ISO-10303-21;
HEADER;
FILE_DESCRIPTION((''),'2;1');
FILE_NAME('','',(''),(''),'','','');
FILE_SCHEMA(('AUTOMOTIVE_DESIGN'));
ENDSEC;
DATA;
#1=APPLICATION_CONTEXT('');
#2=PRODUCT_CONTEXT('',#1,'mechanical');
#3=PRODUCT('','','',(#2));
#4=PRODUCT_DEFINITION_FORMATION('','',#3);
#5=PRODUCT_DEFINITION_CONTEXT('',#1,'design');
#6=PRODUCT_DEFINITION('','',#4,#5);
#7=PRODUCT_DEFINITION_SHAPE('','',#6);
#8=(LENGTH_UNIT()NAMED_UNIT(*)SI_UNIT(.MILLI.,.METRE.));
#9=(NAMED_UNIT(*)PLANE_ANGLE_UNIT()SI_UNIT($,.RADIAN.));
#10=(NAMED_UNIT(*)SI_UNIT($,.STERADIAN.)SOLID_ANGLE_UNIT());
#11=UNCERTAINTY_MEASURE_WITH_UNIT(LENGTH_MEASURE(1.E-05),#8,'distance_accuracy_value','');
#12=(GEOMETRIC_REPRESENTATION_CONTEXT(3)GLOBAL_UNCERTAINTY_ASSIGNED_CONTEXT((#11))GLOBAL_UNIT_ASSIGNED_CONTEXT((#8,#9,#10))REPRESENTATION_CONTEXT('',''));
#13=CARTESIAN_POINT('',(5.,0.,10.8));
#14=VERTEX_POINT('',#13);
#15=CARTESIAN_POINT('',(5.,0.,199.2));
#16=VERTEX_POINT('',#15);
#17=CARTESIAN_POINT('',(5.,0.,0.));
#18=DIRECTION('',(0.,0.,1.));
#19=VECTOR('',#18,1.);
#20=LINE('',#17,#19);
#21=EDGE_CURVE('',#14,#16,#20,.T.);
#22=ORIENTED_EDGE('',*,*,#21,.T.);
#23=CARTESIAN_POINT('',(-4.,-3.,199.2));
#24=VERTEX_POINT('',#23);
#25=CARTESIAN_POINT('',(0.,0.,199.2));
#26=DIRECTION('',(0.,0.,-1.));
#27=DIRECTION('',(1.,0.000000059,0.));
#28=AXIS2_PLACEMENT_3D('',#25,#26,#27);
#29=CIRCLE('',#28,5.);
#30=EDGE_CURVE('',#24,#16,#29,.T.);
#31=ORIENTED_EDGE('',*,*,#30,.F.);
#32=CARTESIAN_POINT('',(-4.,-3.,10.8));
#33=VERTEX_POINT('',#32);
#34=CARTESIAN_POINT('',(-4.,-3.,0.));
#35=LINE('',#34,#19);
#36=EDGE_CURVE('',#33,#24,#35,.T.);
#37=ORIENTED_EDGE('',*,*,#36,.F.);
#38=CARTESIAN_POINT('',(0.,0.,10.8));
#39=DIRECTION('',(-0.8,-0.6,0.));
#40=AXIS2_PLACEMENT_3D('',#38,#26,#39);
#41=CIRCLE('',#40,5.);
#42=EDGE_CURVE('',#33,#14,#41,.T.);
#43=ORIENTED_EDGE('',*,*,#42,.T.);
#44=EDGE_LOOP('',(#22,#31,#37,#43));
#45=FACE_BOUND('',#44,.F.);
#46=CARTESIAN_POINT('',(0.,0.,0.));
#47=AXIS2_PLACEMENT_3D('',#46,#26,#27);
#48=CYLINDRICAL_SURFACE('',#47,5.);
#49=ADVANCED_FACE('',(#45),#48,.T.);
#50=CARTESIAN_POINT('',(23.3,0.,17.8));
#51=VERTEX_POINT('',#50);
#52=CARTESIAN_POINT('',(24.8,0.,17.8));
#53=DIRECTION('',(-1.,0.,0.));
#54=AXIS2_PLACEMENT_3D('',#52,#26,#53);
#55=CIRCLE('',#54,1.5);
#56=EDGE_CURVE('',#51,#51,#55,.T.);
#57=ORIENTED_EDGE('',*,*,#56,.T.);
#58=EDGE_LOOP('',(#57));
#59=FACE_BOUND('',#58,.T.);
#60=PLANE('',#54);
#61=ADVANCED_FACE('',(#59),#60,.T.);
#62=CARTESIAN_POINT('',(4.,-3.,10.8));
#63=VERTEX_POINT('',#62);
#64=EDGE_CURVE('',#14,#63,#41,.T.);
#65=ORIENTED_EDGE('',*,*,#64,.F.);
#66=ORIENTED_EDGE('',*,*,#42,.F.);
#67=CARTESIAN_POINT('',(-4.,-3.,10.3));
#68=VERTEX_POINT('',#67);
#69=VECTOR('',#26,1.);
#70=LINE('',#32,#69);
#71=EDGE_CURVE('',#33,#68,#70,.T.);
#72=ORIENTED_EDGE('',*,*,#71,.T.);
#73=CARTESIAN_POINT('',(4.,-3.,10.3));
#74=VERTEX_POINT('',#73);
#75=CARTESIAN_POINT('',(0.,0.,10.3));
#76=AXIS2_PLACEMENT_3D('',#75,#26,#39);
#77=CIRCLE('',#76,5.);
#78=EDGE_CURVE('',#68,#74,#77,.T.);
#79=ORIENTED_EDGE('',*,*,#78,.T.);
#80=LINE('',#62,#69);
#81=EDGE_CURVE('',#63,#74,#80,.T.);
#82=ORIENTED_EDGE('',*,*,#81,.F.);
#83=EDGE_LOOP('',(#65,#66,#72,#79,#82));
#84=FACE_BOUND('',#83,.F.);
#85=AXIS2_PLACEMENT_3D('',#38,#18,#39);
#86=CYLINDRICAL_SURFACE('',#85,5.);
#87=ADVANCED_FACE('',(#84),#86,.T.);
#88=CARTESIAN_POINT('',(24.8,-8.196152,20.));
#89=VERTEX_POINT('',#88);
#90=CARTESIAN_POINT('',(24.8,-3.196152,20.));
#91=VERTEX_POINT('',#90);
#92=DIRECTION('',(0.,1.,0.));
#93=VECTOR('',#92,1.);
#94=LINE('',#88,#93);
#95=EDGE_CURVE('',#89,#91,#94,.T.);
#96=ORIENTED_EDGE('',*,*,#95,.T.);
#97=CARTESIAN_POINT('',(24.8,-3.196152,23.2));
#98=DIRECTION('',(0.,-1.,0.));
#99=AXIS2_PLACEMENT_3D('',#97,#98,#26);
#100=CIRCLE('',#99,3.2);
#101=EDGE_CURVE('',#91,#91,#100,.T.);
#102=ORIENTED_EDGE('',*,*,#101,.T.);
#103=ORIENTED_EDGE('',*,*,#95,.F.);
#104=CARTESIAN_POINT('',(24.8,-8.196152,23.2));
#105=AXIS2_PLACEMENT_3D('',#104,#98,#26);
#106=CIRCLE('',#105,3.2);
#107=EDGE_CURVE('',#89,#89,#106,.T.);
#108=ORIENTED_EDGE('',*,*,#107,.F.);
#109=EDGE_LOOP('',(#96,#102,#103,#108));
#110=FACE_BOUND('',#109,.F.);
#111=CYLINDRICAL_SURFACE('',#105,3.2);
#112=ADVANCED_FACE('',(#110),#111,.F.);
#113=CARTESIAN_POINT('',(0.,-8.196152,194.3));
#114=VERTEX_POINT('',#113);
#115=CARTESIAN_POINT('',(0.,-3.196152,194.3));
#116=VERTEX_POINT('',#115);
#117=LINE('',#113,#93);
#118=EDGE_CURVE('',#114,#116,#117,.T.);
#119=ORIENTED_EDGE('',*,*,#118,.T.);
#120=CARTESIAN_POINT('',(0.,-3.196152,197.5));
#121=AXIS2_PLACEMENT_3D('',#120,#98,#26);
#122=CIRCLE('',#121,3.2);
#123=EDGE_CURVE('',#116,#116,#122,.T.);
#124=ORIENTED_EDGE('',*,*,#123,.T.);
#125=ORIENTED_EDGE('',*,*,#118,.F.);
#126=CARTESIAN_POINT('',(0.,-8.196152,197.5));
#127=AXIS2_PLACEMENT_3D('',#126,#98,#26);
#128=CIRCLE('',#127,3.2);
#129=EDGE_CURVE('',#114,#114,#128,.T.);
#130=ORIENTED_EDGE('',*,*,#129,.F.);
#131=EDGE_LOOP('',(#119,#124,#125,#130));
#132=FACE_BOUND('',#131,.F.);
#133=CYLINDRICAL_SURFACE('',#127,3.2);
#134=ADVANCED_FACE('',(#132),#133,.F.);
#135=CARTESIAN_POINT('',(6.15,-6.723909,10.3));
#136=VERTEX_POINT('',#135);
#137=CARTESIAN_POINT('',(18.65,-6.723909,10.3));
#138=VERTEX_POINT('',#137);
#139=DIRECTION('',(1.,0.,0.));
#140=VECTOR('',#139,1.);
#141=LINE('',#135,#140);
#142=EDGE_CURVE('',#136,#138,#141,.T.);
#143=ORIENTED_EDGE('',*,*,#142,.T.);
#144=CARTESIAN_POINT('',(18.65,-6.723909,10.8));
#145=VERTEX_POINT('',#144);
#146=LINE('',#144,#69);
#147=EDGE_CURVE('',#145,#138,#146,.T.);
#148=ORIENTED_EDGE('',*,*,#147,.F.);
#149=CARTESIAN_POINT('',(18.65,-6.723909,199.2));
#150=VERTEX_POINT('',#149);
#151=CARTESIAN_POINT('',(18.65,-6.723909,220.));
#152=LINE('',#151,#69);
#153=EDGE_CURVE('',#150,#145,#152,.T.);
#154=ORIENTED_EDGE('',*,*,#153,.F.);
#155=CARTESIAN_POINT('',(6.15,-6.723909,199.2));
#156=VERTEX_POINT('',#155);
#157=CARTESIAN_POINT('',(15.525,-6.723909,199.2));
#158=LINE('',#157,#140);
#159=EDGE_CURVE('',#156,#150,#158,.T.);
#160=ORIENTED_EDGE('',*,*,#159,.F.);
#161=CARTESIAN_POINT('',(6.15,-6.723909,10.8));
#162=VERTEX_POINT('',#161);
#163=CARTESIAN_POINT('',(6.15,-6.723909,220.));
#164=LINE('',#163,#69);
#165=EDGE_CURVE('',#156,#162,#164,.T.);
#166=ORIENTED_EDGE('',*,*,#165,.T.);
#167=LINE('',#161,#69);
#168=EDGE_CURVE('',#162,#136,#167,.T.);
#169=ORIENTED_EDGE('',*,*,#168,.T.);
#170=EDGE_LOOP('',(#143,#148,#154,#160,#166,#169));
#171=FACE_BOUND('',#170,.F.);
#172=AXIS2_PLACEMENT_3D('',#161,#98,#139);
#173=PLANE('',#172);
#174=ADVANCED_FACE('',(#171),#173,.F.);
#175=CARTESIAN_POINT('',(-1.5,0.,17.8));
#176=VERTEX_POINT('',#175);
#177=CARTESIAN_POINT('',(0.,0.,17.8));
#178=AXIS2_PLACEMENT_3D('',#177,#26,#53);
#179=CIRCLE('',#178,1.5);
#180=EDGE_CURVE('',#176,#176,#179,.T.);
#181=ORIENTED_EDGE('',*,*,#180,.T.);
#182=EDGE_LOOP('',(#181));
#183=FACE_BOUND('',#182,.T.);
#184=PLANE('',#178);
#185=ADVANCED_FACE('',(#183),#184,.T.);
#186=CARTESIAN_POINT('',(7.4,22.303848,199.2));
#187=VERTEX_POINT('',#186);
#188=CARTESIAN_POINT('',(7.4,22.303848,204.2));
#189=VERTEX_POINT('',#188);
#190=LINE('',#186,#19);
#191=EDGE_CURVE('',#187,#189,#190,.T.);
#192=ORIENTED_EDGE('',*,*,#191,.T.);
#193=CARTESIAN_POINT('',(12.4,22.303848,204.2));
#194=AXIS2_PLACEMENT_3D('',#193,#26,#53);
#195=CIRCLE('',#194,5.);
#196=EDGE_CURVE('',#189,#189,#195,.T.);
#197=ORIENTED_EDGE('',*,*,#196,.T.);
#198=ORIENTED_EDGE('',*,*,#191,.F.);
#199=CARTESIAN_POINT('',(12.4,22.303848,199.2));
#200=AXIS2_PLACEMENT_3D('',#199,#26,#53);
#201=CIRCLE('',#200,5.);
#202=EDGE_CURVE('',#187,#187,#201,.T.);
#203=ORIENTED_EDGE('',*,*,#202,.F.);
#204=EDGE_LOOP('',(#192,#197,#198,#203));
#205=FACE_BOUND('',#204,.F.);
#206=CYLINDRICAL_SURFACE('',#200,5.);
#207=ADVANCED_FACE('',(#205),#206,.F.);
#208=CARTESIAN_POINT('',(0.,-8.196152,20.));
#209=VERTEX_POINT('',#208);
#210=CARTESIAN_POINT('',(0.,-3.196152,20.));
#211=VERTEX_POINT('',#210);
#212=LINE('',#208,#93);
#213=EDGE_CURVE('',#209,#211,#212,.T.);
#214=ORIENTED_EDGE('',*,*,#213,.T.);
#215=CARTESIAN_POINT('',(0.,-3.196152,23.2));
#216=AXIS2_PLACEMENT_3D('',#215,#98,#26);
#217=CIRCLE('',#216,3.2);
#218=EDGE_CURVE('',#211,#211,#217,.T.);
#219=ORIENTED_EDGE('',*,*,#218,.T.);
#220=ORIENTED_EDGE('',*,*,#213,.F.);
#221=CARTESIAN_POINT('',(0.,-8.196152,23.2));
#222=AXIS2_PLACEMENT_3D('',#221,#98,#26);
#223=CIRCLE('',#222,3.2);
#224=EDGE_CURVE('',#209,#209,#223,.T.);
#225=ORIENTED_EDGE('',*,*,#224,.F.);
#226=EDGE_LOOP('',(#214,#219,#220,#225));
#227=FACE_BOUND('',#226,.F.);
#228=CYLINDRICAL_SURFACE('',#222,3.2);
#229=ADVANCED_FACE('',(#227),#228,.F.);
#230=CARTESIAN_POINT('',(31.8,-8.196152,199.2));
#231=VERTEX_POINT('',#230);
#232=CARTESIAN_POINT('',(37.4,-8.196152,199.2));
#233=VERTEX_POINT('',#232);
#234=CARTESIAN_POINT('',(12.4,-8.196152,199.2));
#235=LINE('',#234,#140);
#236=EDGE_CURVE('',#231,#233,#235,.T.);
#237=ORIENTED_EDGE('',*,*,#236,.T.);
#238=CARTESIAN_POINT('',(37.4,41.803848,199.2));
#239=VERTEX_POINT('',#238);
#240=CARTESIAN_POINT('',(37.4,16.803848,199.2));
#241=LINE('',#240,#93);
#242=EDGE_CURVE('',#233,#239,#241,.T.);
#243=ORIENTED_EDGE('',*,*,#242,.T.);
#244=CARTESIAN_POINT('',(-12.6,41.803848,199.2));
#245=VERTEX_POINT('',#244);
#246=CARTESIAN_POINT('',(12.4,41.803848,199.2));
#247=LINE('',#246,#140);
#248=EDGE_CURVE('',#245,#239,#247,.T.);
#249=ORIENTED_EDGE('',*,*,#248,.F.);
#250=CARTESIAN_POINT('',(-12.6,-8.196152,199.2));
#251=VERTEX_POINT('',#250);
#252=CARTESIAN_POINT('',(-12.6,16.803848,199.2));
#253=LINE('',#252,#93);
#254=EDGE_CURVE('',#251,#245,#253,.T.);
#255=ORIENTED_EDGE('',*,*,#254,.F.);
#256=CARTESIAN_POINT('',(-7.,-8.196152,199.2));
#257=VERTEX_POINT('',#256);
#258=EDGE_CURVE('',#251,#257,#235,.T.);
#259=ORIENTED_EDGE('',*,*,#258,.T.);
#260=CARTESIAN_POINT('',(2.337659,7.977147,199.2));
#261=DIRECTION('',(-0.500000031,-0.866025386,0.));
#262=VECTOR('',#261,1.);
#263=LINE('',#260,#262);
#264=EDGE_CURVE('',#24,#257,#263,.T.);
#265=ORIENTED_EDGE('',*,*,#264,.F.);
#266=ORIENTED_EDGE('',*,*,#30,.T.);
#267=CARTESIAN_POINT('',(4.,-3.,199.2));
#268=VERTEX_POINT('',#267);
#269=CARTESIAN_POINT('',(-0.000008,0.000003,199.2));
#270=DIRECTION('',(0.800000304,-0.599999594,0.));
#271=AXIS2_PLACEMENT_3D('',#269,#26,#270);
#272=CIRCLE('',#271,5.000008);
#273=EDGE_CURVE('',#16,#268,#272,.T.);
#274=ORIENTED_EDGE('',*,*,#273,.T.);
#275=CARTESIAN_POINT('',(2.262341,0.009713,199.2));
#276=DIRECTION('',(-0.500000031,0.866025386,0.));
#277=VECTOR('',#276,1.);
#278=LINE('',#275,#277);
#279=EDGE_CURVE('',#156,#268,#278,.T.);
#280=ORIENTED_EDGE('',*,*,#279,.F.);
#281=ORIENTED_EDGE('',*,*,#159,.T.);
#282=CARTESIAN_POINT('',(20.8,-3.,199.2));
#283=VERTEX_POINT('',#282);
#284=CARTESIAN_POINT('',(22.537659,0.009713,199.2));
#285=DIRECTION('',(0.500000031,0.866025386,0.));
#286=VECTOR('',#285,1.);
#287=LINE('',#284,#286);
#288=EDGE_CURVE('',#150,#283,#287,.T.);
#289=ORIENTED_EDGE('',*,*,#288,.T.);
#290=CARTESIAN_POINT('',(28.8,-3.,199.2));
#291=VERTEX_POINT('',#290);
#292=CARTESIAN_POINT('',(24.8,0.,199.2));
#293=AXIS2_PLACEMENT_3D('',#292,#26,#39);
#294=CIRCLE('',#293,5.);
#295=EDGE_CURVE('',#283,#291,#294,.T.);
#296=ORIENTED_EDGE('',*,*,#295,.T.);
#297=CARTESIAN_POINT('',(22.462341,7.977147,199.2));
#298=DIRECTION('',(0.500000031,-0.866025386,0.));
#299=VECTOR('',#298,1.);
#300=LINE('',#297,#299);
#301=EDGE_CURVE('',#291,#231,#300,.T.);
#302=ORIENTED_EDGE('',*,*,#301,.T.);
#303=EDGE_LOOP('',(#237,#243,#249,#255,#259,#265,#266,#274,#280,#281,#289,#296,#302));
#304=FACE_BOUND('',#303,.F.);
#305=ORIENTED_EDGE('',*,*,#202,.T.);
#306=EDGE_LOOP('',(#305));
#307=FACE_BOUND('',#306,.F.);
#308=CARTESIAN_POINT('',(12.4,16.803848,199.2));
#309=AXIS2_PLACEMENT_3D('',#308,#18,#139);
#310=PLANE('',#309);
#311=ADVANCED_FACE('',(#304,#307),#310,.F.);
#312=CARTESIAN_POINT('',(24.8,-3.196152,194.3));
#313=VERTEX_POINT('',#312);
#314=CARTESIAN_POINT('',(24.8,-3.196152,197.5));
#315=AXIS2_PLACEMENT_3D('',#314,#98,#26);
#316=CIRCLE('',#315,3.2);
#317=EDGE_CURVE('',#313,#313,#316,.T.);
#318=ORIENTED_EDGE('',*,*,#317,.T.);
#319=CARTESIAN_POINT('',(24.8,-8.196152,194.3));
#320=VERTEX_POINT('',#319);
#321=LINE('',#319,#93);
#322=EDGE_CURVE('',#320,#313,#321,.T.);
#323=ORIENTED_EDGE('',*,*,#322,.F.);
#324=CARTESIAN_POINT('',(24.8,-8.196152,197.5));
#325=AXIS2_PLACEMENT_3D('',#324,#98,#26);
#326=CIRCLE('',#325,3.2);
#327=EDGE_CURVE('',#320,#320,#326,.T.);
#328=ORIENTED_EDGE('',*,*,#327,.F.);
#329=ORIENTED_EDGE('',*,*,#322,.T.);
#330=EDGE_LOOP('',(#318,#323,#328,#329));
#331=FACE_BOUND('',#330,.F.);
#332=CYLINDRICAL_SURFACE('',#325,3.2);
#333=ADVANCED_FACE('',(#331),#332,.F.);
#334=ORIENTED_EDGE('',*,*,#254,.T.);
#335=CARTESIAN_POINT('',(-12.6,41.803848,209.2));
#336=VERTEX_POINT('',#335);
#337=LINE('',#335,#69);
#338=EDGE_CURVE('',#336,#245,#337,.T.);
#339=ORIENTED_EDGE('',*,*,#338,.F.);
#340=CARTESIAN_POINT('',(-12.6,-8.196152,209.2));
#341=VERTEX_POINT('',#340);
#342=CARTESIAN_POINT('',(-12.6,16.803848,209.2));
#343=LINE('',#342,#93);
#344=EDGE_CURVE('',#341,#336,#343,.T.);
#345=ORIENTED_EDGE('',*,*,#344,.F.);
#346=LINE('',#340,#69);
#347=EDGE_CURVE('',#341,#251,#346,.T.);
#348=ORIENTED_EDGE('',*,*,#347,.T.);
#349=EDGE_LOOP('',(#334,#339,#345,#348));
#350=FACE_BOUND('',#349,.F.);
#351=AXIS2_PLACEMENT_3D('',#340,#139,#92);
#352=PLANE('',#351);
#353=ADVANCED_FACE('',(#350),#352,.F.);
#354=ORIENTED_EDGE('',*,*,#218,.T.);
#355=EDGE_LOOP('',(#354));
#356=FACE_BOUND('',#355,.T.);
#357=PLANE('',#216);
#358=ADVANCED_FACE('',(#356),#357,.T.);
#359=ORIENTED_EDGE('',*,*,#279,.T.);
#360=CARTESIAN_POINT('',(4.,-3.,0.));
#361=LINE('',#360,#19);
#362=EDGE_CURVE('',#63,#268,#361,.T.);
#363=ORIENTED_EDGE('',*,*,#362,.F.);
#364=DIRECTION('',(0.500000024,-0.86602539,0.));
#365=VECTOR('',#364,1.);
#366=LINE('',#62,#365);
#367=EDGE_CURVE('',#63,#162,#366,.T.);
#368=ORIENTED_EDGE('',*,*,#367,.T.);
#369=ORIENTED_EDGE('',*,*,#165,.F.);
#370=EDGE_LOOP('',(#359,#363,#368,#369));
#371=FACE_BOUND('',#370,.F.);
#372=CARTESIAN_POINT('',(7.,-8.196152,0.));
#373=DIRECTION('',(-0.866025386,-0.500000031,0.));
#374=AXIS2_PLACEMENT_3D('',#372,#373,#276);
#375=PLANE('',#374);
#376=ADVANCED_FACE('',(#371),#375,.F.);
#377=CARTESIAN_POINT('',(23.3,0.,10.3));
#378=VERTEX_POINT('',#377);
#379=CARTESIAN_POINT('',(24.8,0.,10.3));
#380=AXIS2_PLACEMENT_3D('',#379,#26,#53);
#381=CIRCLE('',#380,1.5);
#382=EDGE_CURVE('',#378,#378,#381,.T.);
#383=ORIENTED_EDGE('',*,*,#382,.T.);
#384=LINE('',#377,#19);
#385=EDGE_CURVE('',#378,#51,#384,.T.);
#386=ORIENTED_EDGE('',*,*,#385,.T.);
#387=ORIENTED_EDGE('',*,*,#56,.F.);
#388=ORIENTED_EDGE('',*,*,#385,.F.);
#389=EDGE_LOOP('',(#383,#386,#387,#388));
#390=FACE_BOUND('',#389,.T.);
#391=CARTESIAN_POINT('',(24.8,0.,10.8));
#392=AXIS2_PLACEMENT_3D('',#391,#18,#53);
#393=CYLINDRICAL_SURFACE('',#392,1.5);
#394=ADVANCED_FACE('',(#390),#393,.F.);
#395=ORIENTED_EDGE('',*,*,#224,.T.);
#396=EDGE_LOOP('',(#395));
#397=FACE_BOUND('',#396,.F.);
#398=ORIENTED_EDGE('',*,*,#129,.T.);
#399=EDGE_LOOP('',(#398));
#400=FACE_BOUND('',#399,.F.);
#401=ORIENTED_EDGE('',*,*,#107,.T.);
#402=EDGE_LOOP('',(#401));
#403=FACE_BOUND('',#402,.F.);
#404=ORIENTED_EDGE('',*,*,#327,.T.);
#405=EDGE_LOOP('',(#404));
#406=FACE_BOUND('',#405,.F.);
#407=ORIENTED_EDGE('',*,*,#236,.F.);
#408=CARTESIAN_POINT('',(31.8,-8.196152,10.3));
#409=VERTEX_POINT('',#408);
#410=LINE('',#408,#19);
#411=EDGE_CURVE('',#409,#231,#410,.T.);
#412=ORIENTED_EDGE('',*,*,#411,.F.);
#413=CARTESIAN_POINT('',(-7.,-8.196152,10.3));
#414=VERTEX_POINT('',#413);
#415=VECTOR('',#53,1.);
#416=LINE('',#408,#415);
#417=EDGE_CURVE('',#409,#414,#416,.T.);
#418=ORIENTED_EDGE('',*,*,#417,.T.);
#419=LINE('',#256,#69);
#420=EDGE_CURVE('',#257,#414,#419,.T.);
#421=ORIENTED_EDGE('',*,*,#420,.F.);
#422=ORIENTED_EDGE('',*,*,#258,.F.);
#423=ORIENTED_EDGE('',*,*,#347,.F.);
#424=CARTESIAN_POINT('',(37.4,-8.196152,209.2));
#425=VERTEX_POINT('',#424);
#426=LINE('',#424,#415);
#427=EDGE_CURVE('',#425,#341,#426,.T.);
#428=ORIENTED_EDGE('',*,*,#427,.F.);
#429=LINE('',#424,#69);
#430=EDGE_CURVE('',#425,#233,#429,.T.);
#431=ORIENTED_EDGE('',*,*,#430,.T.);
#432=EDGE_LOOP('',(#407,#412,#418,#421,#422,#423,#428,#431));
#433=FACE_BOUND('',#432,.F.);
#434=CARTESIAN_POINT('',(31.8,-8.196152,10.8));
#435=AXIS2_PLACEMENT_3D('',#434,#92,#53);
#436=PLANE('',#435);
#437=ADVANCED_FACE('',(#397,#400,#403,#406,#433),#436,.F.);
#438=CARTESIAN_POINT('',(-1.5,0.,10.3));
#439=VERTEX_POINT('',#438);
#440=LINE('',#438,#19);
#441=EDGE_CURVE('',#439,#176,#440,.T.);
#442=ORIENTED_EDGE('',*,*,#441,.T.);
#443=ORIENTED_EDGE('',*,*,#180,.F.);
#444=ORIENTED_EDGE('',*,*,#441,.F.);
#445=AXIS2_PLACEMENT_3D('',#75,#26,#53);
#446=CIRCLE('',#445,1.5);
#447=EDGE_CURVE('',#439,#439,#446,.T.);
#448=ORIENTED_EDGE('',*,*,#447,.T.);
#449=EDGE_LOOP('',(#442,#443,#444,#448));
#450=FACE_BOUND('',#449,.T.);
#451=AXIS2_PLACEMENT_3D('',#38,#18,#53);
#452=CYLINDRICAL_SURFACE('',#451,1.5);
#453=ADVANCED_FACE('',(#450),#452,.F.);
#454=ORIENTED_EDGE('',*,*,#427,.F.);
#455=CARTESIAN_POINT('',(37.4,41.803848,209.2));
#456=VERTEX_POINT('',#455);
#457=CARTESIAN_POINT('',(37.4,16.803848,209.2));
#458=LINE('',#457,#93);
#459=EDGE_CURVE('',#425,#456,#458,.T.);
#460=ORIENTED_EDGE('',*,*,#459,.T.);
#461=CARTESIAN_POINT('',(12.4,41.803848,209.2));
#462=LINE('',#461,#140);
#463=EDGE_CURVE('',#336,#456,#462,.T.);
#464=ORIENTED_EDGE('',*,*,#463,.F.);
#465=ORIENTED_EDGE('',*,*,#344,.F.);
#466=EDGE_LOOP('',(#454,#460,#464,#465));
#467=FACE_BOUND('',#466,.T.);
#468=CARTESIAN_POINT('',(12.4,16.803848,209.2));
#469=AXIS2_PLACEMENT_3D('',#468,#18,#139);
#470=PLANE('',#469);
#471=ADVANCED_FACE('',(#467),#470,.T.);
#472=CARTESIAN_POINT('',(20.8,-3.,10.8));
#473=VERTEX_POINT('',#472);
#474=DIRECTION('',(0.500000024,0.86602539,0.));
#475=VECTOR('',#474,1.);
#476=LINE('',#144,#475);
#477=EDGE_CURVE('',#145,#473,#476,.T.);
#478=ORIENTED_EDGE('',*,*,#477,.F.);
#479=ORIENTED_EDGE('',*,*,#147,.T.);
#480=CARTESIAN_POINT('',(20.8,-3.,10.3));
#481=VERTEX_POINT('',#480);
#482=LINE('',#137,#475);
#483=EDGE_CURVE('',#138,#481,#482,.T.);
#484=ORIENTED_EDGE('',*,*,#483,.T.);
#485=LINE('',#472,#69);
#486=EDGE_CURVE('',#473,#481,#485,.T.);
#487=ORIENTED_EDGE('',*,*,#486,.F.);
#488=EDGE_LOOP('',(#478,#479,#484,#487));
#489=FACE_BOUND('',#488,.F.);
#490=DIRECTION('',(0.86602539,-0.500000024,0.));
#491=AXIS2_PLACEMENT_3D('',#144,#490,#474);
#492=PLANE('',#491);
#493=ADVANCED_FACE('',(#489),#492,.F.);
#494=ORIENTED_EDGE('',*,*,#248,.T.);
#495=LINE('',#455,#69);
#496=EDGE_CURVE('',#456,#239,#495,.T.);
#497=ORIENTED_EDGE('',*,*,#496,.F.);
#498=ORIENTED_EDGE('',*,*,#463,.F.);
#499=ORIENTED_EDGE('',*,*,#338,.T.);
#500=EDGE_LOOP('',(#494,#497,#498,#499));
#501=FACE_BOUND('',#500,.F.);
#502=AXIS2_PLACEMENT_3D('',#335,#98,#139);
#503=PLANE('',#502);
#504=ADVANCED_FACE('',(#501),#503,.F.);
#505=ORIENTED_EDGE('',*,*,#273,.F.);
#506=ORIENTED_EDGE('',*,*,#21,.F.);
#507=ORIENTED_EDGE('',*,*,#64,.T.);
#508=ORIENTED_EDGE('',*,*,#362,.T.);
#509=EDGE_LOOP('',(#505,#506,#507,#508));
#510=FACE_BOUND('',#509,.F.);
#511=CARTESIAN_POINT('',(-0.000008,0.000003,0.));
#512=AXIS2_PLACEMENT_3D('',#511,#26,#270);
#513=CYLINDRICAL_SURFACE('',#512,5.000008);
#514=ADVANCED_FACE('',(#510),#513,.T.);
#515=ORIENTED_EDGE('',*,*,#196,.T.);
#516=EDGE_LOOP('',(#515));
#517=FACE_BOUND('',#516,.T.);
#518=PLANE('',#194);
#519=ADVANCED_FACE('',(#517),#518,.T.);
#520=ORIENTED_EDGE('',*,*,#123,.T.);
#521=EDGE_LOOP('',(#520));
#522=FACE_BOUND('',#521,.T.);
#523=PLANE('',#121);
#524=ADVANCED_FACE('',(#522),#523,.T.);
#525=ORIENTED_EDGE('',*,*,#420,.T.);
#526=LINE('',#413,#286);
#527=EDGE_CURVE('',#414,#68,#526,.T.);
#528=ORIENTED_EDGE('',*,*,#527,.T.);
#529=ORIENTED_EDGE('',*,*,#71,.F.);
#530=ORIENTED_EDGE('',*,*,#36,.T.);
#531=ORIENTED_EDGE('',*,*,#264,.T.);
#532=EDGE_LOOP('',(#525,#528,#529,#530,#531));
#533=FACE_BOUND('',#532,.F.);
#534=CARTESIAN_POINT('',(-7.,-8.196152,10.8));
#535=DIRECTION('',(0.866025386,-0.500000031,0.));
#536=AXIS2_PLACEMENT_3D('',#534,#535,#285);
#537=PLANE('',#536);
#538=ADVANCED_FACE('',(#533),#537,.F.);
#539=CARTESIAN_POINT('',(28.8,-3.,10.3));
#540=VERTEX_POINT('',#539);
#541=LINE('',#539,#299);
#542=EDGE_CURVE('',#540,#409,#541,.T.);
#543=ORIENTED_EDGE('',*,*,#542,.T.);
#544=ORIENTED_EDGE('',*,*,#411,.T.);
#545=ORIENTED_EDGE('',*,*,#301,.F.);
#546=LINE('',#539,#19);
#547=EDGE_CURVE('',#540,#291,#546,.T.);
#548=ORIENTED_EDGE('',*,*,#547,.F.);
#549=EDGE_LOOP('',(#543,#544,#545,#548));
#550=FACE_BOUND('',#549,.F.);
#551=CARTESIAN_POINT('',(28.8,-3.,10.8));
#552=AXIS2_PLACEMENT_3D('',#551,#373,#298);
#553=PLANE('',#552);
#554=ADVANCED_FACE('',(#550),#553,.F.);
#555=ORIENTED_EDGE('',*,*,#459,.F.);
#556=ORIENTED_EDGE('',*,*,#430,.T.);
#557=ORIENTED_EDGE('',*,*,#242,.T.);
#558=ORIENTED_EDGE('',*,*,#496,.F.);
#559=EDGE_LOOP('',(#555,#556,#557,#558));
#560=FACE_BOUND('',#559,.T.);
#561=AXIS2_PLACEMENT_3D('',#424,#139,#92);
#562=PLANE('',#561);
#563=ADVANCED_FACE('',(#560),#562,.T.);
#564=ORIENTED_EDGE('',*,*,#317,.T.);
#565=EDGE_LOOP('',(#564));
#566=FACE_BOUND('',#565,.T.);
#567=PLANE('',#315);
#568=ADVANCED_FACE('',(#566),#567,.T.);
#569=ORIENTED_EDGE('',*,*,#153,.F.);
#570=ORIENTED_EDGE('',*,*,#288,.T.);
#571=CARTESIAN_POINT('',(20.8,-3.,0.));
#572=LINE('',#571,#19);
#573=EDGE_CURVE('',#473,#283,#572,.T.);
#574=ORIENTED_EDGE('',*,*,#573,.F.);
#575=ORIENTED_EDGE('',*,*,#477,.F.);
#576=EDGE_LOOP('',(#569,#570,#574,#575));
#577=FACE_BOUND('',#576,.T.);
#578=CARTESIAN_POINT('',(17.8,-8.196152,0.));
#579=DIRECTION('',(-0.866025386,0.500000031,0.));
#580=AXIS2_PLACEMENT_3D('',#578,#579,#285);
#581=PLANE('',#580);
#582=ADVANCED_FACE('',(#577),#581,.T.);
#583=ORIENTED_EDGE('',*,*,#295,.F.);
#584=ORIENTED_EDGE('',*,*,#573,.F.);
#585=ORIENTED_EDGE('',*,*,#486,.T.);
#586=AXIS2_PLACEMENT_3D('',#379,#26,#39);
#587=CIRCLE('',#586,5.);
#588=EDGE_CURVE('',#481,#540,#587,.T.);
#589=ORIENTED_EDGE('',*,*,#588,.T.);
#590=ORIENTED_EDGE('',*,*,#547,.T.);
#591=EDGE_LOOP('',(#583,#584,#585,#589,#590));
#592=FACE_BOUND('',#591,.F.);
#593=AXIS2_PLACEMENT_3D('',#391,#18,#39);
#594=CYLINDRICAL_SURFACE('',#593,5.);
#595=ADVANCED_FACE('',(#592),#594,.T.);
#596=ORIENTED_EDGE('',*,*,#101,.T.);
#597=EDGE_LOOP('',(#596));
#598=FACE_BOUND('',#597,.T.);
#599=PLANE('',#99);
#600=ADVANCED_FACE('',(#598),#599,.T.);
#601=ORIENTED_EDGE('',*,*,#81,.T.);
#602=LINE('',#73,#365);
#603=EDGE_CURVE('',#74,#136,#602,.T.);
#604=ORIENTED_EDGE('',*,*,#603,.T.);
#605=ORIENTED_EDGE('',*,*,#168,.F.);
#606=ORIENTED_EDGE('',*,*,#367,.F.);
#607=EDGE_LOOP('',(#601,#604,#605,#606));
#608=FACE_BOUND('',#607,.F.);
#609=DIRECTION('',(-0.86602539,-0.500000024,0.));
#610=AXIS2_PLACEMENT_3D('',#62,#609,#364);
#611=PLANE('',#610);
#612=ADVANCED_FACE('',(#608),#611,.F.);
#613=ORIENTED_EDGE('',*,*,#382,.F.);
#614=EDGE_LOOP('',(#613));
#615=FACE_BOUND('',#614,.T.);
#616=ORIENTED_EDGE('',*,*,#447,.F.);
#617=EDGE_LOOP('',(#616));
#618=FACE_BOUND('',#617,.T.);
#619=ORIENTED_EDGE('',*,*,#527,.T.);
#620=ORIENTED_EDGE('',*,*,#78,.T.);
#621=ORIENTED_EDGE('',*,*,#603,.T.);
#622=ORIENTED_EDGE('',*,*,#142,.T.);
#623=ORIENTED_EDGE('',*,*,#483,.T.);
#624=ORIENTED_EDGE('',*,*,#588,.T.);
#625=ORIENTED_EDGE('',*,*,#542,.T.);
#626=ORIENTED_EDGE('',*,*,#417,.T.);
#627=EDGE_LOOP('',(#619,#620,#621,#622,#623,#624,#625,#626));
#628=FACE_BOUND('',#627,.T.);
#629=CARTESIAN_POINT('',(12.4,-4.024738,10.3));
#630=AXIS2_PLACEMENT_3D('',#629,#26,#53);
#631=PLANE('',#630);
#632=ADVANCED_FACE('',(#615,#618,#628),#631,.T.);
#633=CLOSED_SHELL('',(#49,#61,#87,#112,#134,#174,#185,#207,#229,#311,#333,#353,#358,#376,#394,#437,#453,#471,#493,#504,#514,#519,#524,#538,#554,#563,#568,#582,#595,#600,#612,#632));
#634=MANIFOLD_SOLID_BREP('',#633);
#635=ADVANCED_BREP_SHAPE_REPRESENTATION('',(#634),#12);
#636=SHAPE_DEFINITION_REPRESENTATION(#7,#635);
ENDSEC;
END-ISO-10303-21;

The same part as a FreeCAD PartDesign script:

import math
import FreeCAD as App
import Part
import Sketcher
Q = App.Units.Quantity


def add_polygon(sketch, points):
    """Adds a closed chain of lines whose ends are joined by coincident constraints."""
    first, n = sketch.GeometryCount, len(points)
    for a, b in zip(points, points[1:] + points[:1]):
        sketch.addGeometry(Part.LineSegment(App.Vector(*a, 0), App.Vector(*b, 0)), False)
    for i in range(n):
        sketch.addConstraint(Sketcher.Constraint("Coincident", first + i, 2, first + (i + 1) % n, 1))

doc = App.newDocument("Part")
params = doc.addObject("Spreadsheet::Sheet", "Params")
for row, (alias, value) in enumerate([
    ("sketch1_radius", "5 mm"),
    ("sketch1_width", "14 mm"),
    ("sketch1_length", "6 mm"),
    ("pad1_length", "220 mm"),
    ("sketch2_width", "12.5 mm"),
    ("pad2_length", "220 mm"),
    ("sketch3_diameter", "2.74 mm"),
    ("pocket1_length", "7 mm"),
    ("sketch4_diameter", "2.74 mm"),
    ("pocket2_length", "7 mm"),
    ("sketch5_radius", "5 mm"),
    ("sketch5_length", "6 mm"),
    ("sketch5_width", "38.8 mm"),
    ("sketch5_width2", "12.5 mm"),
    ("pocket3_length", "10.8 mm"),
    ("sketch6_radius", "5 mm"),
    ("sketch6_length", "6 mm"),
    ("sketch6_width", "12.5 mm"),
    ("sketch6_width2", "38.8 mm"),
    ("pocket4_length", "10.8 mm"),
    ("sketch7_diameter", "4 mm"),
    ("pocket5_length", "7 mm"),
    ("sketch8_diameter", "3 mm"),
    ("pocket6_length", "7 mm"),
    ("sketch9_width", "50 mm"),
    ("pad3_length", "10 mm"),
    ("sketch10_diameter", "10 mm"),
    ("pocket7_length", "5 mm"),
    ("sketch11_diameter", "6.4 mm"),
    ("pocket8_length", "5 mm"),
    ("sketch12_diameter", "3 mm"),
    ("sketch12_radius", "5 mm"),
    ("sketch12_length", "6 mm"),
    ("sketch12_width", "38.8 mm"),
    ("sketch12_width2", "12.5 mm"),
    ("pad4_length", "0.5 mm"),
], start=1):
    params.set(f"A{row}", alias)
    params.set(f"B{row}", "=" + value)
    params.setAlias(f"B{row}", alias)

body = doc.addObject("PartDesign::Body", "Body")
body.AllowCompound = True

# Sketch on XY plane
sketch1 = body.newObject("Sketcher::SketchObject", "Sketch")
sketch1.AttachmentSupport = (doc.getObject("XY_Plane"), [""])
sketch1.MapMode = "FlatFace"
sketch1.addGeometry(Part.ArcOfCircle(Part.Circle(App.Vector(0, 0, 0), App.Vector(0, 0, 1), 5), math.radians(0), math.radians(217)), False)
sketch1.addGeometry(Part.LineSegment(App.Vector(-4, -3, 0), App.Vector(-7, -8.2, 0)), False)
sketch1.addGeometry(Part.LineSegment(App.Vector(-7, -8.2, 0), App.Vector(7, -8.2, 0)), False)
sketch1.addGeometry(Part.LineSegment(App.Vector(7, -8.2, 0), App.Vector(4, -3, 0)), False)
sketch1.addGeometry(Part.ArcOfCircle(Part.Circle(App.Vector(0, 0, 0), App.Vector(0, 0, 1), 5), math.radians(-37), math.radians(0)), False)
sketch1.addGeometry(Part.LineSegment(App.Vector(31.8, -8.2, 0), App.Vector(28.8, -3, 0)), False)
sketch1.addGeometry(Part.ArcOfCircle(Part.Circle(App.Vector(24.8, 0, 0), App.Vector(0, 0, 1), 5), math.radians(-37), math.radians(217)), False)
sketch1.addGeometry(Part.LineSegment(App.Vector(20.8, -3, 0), App.Vector(17.8, -8.2, 0)), False)
sketch1.addGeometry(Part.LineSegment(App.Vector(17.8, -8.2, 0), App.Vector(31.8, -8.2, 0)), False)
sketch1.addConstraint(Sketcher.Constraint("Coincident", 0, 2, 1, 1))
sketch1.addConstraint(Sketcher.Constraint("Coincident", 1, 2, 2, 1))
sketch1.addConstraint(Sketcher.Constraint("Coincident", 2, 2, 3, 1))
sketch1.addConstraint(Sketcher.Constraint("Coincident", 3, 2, 4, 1))
sketch1.addConstraint(Sketcher.Constraint("Tangent", 4, 2, 0, 1))
sketch1.addConstraint(Sketcher.Constraint("Coincident", 5, 2, 6, 1))
sketch1.addConstraint(Sketcher.Constraint("Coincident", 6, 2, 7, 1))
sketch1.addConstraint(Sketcher.Constraint("Coincident", 7, 2, 8, 1))
sketch1.addConstraint(Sketcher.Constraint("Coincident", 8, 2, 5, 1))
sketch1.addConstraint(Sketcher.Constraint("Horizontal", 2))
sketch1.addConstraint(Sketcher.Constraint("Horizontal", 8))
sketch1.addConstraint(Sketcher.Constraint("Coincident", 0, 3, -1, 1))
sketch1.addConstraint(Sketcher.Constraint("Equal", 0, 6))
sketch1.addConstraint(Sketcher.Constraint("Symmetric", 0, 2, 3, 2, -2))
sketch1.addConstraint(Sketcher.Constraint("PointOnObject", 6, 3, -1))
sketch1.addConstraint(Sketcher.Constraint("PointOnObject", 4, 2, -1))
sketch1.addConstraint(Sketcher.Constraint("Parallel", 3, 5))
sketch1.addConstraint(Sketcher.Constraint("Parallel", 1, 7))
sketch1.addConstraint(Sketcher.Constraint("Horizontal", 3, 2, 5, 2))
sketch1.addConstraint(Sketcher.Constraint("Horizontal", 5, 2, 6, 2))
sketch1.addConstraint(Sketcher.Constraint("Horizontal", 2, 2, 7, 2))
sketch1.addConstraint(Sketcher.Constraint("Equal", 1, 3))
sketch1.addConstraint(Sketcher.Constraint("Radius", 0, 5.0))
sketch1.addConstraint(Sketcher.Constraint("DistanceX", 2, 1, 2, 2, 14.0))
sketch1.addConstraint(Sketcher.Constraint("Angle", 1, Q("-120.000002 deg")))
sketch1.addConstraint(Sketcher.Constraint("Distance", 1, 6.0))
sketch1.addConstraint(Sketcher.Constraint("DistanceX", -1, 1, 6, 3, 24.8))
sketch1.setExpression("Constraints[22]", "Params.sketch1_radius")
sketch1.setExpression("Constraints[23]", "Params.sketch1_width")
sketch1.setExpression("Constraints[25]", "Params.sketch1_length")
pad1 = body.newObject("PartDesign::Pad", "Pad")
pad1.Profile = sketch1
pad1.setExpression("Length", "Params.pad1_length")

# Sketch on XY plane
sketch2 = body.newObject("Sketcher::SketchObject", "Sketch001")
sketch2.AttachmentSupport = (doc.getObject("XY_Plane"), [""])
sketch2.MapMode = "FlatFace"
sketch2.AttachmentOffset = App.Placement(App.Vector(0, 0, 220), App.Rotation())
add_polygon(sketch2, [(18.6, -8.2), (18.6, -6.7), (6.2, -6.7), (6.2, -8.2)])  # lines 0-3
sketch2.addConstraint(Sketcher.Constraint("Vertical", 0))
sketch2.addConstraint(Sketcher.Constraint("Horizontal", 1))
sketch2.addConstraint(Sketcher.Constraint("Vertical", 2))
sketch2.addConstraint(Sketcher.Constraint("Horizontal", 3))
sketch2.addConstraint(Sketcher.Constraint("DistanceX", 1, 2, 1, 1, 12.5))
sketch2.addConstraint(Sketcher.Constraint("DistanceX", -1, 1, 0, 2, 18.65))
sketch2.addConstraint(Sketcher.Constraint("DistanceY", 0, 1, 0, 2, 1.472243))
sketch2.addConstraint(Sketcher.Constraint("DistanceY", 0, 2, -1, 1, 6.723909))
sketch2.setExpression("Constraints[8]", "Params.sketch2_width")
pad2 = body.newObject("PartDesign::Pad", "Pad001")
pad2.Profile = sketch2
pad2.setExpression("Length", "Params.pad2_length")
pad2.Reversed = True

# Sketch on XY plane
sketch3 = body.newObject("Sketcher::SketchObject", "Sketch002")
sketch3.AttachmentSupport = (doc.getObject("XY_Plane"), [""])
sketch3.MapMode = "FlatFace"
sketch3.addGeometry(Part.Circle(App.Vector(0, 0, 0), App.Vector(0, 0, 1), 1.4), False)
sketch3.addGeometry(Part.Circle(App.Vector(24.8, 0, 0), App.Vector(0, 0, 1), 1.4), False)
sketch3.addConstraint(Sketcher.Constraint("Coincident", 0, 3, -1, 1))
sketch3.addConstraint(Sketcher.Constraint("Equal", 0, 1))
sketch3.addConstraint(Sketcher.Constraint("PointOnObject", 1, 3, -1))
sketch3.addConstraint(Sketcher.Constraint("Diameter", 0, 2.74))
sketch3.addConstraint(Sketcher.Constraint("DistanceX", -1, 1, 1, 3, 24.8))
sketch3.setExpression("Constraints[3]", "Params.sketch3_diameter")
pocket1 = body.newObject("PartDesign::Pocket", "Pocket")
pocket1.Profile = sketch3
pocket1.setExpression("Length", "Params.pocket1_length")
pocket1.Reversed = True

# Sketch on XY plane
sketch4 = body.newObject("Sketcher::SketchObject", "Sketch003")
sketch4.AttachmentSupport = (doc.getObject("XY_Plane"), [""])
sketch4.MapMode = "FlatFace"
sketch4.AttachmentOffset = App.Placement(App.Vector(0, 0, 220), App.Rotation())
sketch4.addGeometry(Part.Circle(App.Vector(0, 0, 0), App.Vector(0, 0, 1), 1.4), False)
sketch4.addGeometry(Part.Circle(App.Vector(24.8, 0, 0), App.Vector(0, 0, 1), 1.4), False)
sketch4.addConstraint(Sketcher.Constraint("Coincident", 0, 3, -1, 1))
sketch4.addConstraint(Sketcher.Constraint("Equal", 0, 1))
sketch4.addConstraint(Sketcher.Constraint("PointOnObject", 1, 3, -1))
sketch4.addConstraint(Sketcher.Constraint("Diameter", 0, 2.74))
sketch4.addConstraint(Sketcher.Constraint("DistanceX", -1, 1, 1, 3, 24.8))
sketch4.setExpression("Constraints[3]", "Params.sketch4_diameter")
pocket2 = body.newObject("PartDesign::Pocket", "Pocket001")
pocket2.Profile = sketch4
pocket2.setExpression("Length", "Params.pocket2_length")

# Sketch on XY plane
sketch5 = body.newObject("Sketcher::SketchObject", "Sketch004")
sketch5.AttachmentSupport = (doc.getObject("XY_Plane"), [""])
sketch5.MapMode = "FlatFace"
sketch5.addGeometry(Part.LineSegment(App.Vector(28.8, -3, 0), App.Vector(31.8, -8.2, 0)), False)
sketch5.addGeometry(Part.LineSegment(App.Vector(31.8, -8.2, 0), App.Vector(-7, -8.2, 0)), False)
sketch5.addGeometry(Part.LineSegment(App.Vector(-7, -8.2, 0), App.Vector(-4, -3, 0)), False)
sketch5.addGeometry(Part.ArcOfCircle(Part.Circle(App.Vector(0, 0, 0), App.Vector(0, 0, 1), 5), math.radians(-37), math.radians(217)), False)
sketch5.addGeometry(Part.LineSegment(App.Vector(4, -3, 0), App.Vector(6.2, -6.7, 0)), False)
sketch5.addGeometry(Part.LineSegment(App.Vector(6.2, -6.7, 0), App.Vector(18.6, -6.7, 0)), False)
sketch5.addGeometry(Part.LineSegment(App.Vector(18.6, -6.7, 0), App.Vector(20.8, -3, 0)), False)
sketch5.addGeometry(Part.ArcOfCircle(Part.Circle(App.Vector(24.8, 0, 0), App.Vector(0, 0, 1), 5), math.radians(-37), math.radians(217)), False)
sketch5.addConstraint(Sketcher.Constraint("Coincident", 0, 2, 1, 1))
sketch5.addConstraint(Sketcher.Constraint("Coincident", 1, 2, 2, 1))
sketch5.addConstraint(Sketcher.Constraint("Coincident", 2, 2, 3, 2))
sketch5.addConstraint(Sketcher.Constraint("Coincident", 3, 1, 4, 1))
sketch5.addConstraint(Sketcher.Constraint("Coincident", 4, 2, 5, 1))
sketch5.addConstraint(Sketcher.Constraint("Coincident", 5, 2, 6, 1))
sketch5.addConstraint(Sketcher.Constraint("Coincident", 6, 2, 7, 2))
sketch5.addConstraint(Sketcher.Constraint("Coincident", 7, 1, 0, 1))
sketch5.addConstraint(Sketcher.Constraint("Horizontal", 1))
sketch5.addConstraint(Sketcher.Constraint("Horizontal", 5))
sketch5.addConstraint(Sketcher.Constraint("Coincident", 3, 3, -1, 1))
sketch5.addConstraint(Sketcher.Constraint("Equal", 3, 7))
sketch5.addConstraint(Sketcher.Constraint("PointOnObject", 7, 3, -1))
sketch5.addConstraint(Sketcher.Constraint("Parallel", 0, 4))
sketch5.addConstraint(Sketcher.Constraint("Parallel", 2, 6))
sketch5.addConstraint(Sketcher.Constraint("Horizontal", 2, 2, 3, 1))
sketch5.addConstraint(Sketcher.Constraint("Horizontal", 3, 1, 6, 2))
sketch5.addConstraint(Sketcher.Constraint("Horizontal", 6, 2, 7, 1))
sketch5.addConstraint(Sketcher.Constraint("Equal", 0, 2))
sketch5.addConstraint(Sketcher.Constraint("Radius", 3, 5.0))
sketch5.addConstraint(Sketcher.Constraint("Angle", 0, Q("-59.999998 deg")))
sketch5.addConstraint(Sketcher.Constraint("Distance", 0, 6.0))
sketch5.addConstraint(Sketcher.Constraint("DistanceX", 1, 2, 1, 1, 38.8))
sketch5.addConstraint(Sketcher.Constraint("DistanceX", 5, 1, 5, 2, 12.5))
sketch5.addConstraint(Sketcher.Constraint("DistanceX", 1, 2, -1, 1, 7.0))
sketch5.setExpression("Constraints[19]", "Params.sketch5_radius")
sketch5.setExpression("Constraints[21]", "Params.sketch5_length")
sketch5.setExpression("Constraints[22]", "Params.sketch5_width")
sketch5.setExpression("Constraints[23]", "Params.sketch5_width2")
pocket3 = body.newObject("PartDesign::Pocket", "Pocket002")
pocket3.Profile = sketch5
pocket3.setExpression("Length", "Params.pocket3_length")
pocket3.Reversed = True

# Sketch on XY plane
sketch6 = body.newObject("Sketcher::SketchObject", "Sketch005")
sketch6.AttachmentSupport = (doc.getObject("XY_Plane"), [""])
sketch6.MapMode = "FlatFace"
sketch6.AttachmentOffset = App.Placement(App.Vector(0, 0, 220), App.Rotation())
sketch6.addGeometry(Part.LineSegment(App.Vector(20.8, -3, 0), App.Vector(18.6, -6.7, 0)), False)
sketch6.addGeometry(Part.LineSegment(App.Vector(18.6, -6.7, 0), App.Vector(6.2, -6.7, 0)), False)
sketch6.addGeometry(Part.LineSegment(App.Vector(6.2, -6.7, 0), App.Vector(4, -3, 0)), False)
sketch6.addGeometry(Part.ArcOfCircle(Part.Circle(App.Vector(0, 0, 0), App.Vector(0, 0, 1), 5), math.radians(-37), math.radians(217)), False)
sketch6.addGeometry(Part.LineSegment(App.Vector(-4, -3, 0), App.Vector(-7, -8.2, 0)), False)
sketch6.addGeometry(Part.LineSegment(App.Vector(-7, -8.2, 0), App.Vector(31.8, -8.2, 0)), False)
sketch6.addGeometry(Part.LineSegment(App.Vector(31.8, -8.2, 0), App.Vector(28.8, -3, 0)), False)
sketch6.addGeometry(Part.ArcOfCircle(Part.Circle(App.Vector(24.8, 0, 0), App.Vector(0, 0, 1), 5), math.radians(-37), math.radians(217)), False)
sketch6.addConstraint(Sketcher.Constraint("Coincident", 0, 2, 1, 1))
sketch6.addConstraint(Sketcher.Constraint("Coincident", 1, 2, 2, 1))
sketch6.addConstraint(Sketcher.Constraint("Coincident", 2, 2, 3, 1))
sketch6.addConstraint(Sketcher.Constraint("Coincident", 3, 2, 4, 1))
sketch6.addConstraint(Sketcher.Constraint("Coincident", 4, 2, 5, 1))
sketch6.addConstraint(Sketcher.Constraint("Coincident", 5, 2, 6, 1))
sketch6.addConstraint(Sketcher.Constraint("Coincident", 6, 2, 7, 1))
sketch6.addConstraint(Sketcher.Constraint("Coincident", 7, 2, 0, 1))
sketch6.addConstraint(Sketcher.Constraint("Horizontal", 1))
sketch6.addConstraint(Sketcher.Constraint("Horizontal", 5))
sketch6.addConstraint(Sketcher.Constraint("Coincident", 3, 3, -1, 1))
sketch6.addConstraint(Sketcher.Constraint("Equal", 3, 7))
sketch6.addConstraint(Sketcher.Constraint("PointOnObject", 7, 3, -1))
sketch6.addConstraint(Sketcher.Constraint("Parallel", 0, 4))
sketch6.addConstraint(Sketcher.Constraint("Parallel", 2, 6))
sketch6.addConstraint(Sketcher.Constraint("Horizontal", 2, 2, 3, 2))
sketch6.addConstraint(Sketcher.Constraint("Horizontal", 3, 2, 6, 2))
sketch6.addConstraint(Sketcher.Constraint("Horizontal", 6, 2, 7, 2))
sketch6.addConstraint(Sketcher.Constraint("Equal", 0, 2))
sketch6.addConstraint(Sketcher.Constraint("Radius", 3, 5.0))
sketch6.addConstraint(Sketcher.Constraint("Angle", 0, Q("-120.000002 deg")))
sketch6.addConstraint(Sketcher.Constraint("Distance", 4, 6.0))
sketch6.addConstraint(Sketcher.Constraint("DistanceX", 1, 2, 1, 1, 12.5))
sketch6.addConstraint(Sketcher.Constraint("DistanceX", 5, 1, 5, 2, 38.8))
sketch6.addConstraint(Sketcher.Constraint("DistanceX", -1, 1, 2, 2, 4.0))
sketch6.setExpression("Constraints[19]", "Params.sketch6_radius")
sketch6.setExpression("Constraints[21]", "Params.sketch6_length")
sketch6.setExpression("Constraints[22]", "Params.sketch6_width")
sketch6.setExpression("Constraints[23]", "Params.sketch6_width2")
pocket4 = body.newObject("PartDesign::Pocket", "Pocket003")
pocket4.Profile = sketch6
pocket4.setExpression("Length", "Params.pocket4_length")

# Sketch on XY plane
sketch7 = body.newObject("Sketcher::SketchObject", "Sketch006")
sketch7.AttachmentSupport = (doc.getObject("XY_Plane"), [""])
sketch7.MapMode = "FlatFace"
sketch7.AttachmentOffset = App.Placement(App.Vector(0, 0, 209.2), App.Rotation())
sketch7.addGeometry(Part.Circle(App.Vector(0, 0, 0), App.Vector(0, 0, 1), 2), False)
sketch7.addGeometry(Part.Circle(App.Vector(24.8, 0, 0), App.Vector(0, 0, 1), 2), False)
sketch7.addConstraint(Sketcher.Constraint("Coincident", 0, 3, -1, 1))
sketch7.addConstraint(Sketcher.Constraint("Equal", 0, 1))
sketch7.addConstraint(Sketcher.Constraint("PointOnObject", 1, 3, -1))
sketch7.addConstraint(Sketcher.Constraint("Diameter", 0, 4.0))
sketch7.addConstraint(Sketcher.Constraint("DistanceX", -1, 1, 1, 3, 24.8))
sketch7.setExpression("Constraints[3]", "Params.sketch7_diameter")
pocket5 = body.newObject("PartDesign::Pocket", "Pocket004")
pocket5.Profile = sketch7
pocket5.setExpression("Length", "Params.pocket5_length")

# Sketch on XY plane
sketch8 = body.newObject("Sketcher::SketchObject", "Sketch007")
sketch8.AttachmentSupport = (doc.getObject("XY_Plane"), [""])
sketch8.MapMode = "FlatFace"
sketch8.AttachmentOffset = App.Placement(App.Vector(0, 0, 10.8), App.Rotation())
sketch8.addGeometry(Part.Circle(App.Vector(0, 0, 0), App.Vector(0, 0, 1), 1.5), False)
sketch8.addGeometry(Part.Circle(App.Vector(24.8, 0, 0), App.Vector(0, 0, 1), 1.5), False)
sketch8.addConstraint(Sketcher.Constraint("Coincident", 0, 3, -1, 1))
sketch8.addConstraint(Sketcher.Constraint("Equal", 0, 1))
sketch8.addConstraint(Sketcher.Constraint("PointOnObject", 1, 3, -1))
sketch8.addConstraint(Sketcher.Constraint("Diameter", 0, 3.0))
sketch8.addConstraint(Sketcher.Constraint("DistanceX", -1, 1, 1, 3, 24.8))
sketch8.setExpression("Constraints[3]", "Params.sketch8_diameter")
pocket6 = body.newObject("PartDesign::Pocket", "Pocket005")
pocket6.Profile = sketch8
pocket6.setExpression("Length", "Params.pocket6_length")
pocket6.Reversed = True

# Sketch on XY plane
sketch9 = body.newObject("Sketcher::SketchObject", "Sketch008")
sketch9.AttachmentSupport = (doc.getObject("XY_Plane"), [""])
sketch9.MapMode = "FlatFace"
sketch9.AttachmentOffset = App.Placement(App.Vector(0, 0, 209.2), App.Rotation())
add_polygon(sketch9, [(-13, 42), (-13, -8), (37, -8), (37, 42)])  # lines 0-3
sketch9.addConstraint(Sketcher.Constraint("Vertical", 0))
sketch9.addConstraint(Sketcher.Constraint("Horizontal", 1))
sketch9.addConstraint(Sketcher.Constraint("Vertical", 2))
sketch9.addConstraint(Sketcher.Constraint("Horizontal", 3))
sketch9.addConstraint(Sketcher.Constraint("Equal", 3, 0))
sketch9.addConstraint(Sketcher.Constraint("DistanceX", 1, 1, 1, 2, 50.0))
sketch9.addConstraint(Sketcher.Constraint("DistanceX", 0, 2, -1, 1, 12.6))
sketch9.addConstraint(Sketcher.Constraint("DistanceY", -1, 1, 2, 2, 41.803848))
sketch9.setExpression("Constraints[9]", "Params.sketch9_width")
pad3 = body.newObject("PartDesign::Pad", "Pad002")
pad3.Profile = sketch9
pad3.setExpression("Length", "Params.pad3_length")
pad3.Reversed = True

# Sketch on XY plane
sketch10 = body.newObject("Sketcher::SketchObject", "Sketch009")
sketch10.AttachmentSupport = (doc.getObject("XY_Plane"), [""])
sketch10.MapMode = "FlatFace"
sketch10.AttachmentOffset = App.Placement(App.Vector(0, 0, 199.2), App.Rotation())
sketch10.addGeometry(Part.Circle(App.Vector(12, 22, 0), App.Vector(0, 0, 1), 5), False)
sketch10.addConstraint(Sketcher.Constraint("Diameter", 0, 10.0))
sketch10.addConstraint(Sketcher.Constraint("DistanceX", -1, 1, 0, 3, 12.4))
sketch10.addConstraint(Sketcher.Constraint("DistanceY", -1, 1, 0, 3, 22.303848))
sketch10.setExpression("Constraints[0]", "Params.sketch10_diameter")
pocket7 = body.newObject("PartDesign::Pocket", "Pocket006")
pocket7.Profile = sketch10
pocket7.setExpression("Length", "Params.pocket7_length")
pocket7.Reversed = True

# Sketch on XZ plane
sketch11 = body.newObject("Sketcher::SketchObject", "Sketch010")
sketch11.AttachmentSupport = (doc.getObject("XZ_Plane"), [""])
sketch11.MapMode = "FlatFace"
sketch11.AttachmentOffset = App.Placement(App.Vector(0, 0, 8.196152), App.Rotation())
sketch11.addGeometry(Part.Circle(App.Vector(24.8, 197.5, 0), App.Vector(0, 0, 1), 3.2), False)
sketch11.addGeometry(Part.Circle(App.Vector(24.8, 23.2, 0), App.Vector(0, 0, 1), 3.2), False)
sketch11.addGeometry(Part.Circle(App.Vector(0, 23.2, 0), App.Vector(0, 0, 1), 3.2), False)
sketch11.addGeometry(Part.Circle(App.Vector(0, 197.5, 0), App.Vector(0, 0, 1), 3.2), False)
sketch11.addConstraint(Sketcher.Constraint("Equal", 0, 1))
sketch11.addConstraint(Sketcher.Constraint("Equal", 1, 2))
sketch11.addConstraint(Sketcher.Constraint("Equal", 2, 3))
sketch11.addConstraint(Sketcher.Constraint("PointOnObject", 2, 3, -2))
sketch11.addConstraint(Sketcher.Constraint("PointOnObject", 3, 3, -2))
sketch11.addConstraint(Sketcher.Constraint("Horizontal", 1, 3, 2, 3))
sketch11.addConstraint(Sketcher.Constraint("Horizontal", 0, 3, 3, 3))
sketch11.addConstraint(Sketcher.Constraint("Vertical", 0, 3, 1, 3))
sketch11.addConstraint(Sketcher.Constraint("Diameter", 0, 6.4))
sketch11.addConstraint(Sketcher.Constraint("DistanceX", -1, 1, 0, 3, 24.8))
sketch11.addConstraint(Sketcher.Constraint("DistanceY", -1, 1, 0, 3, 197.5))
sketch11.addConstraint(Sketcher.Constraint("DistanceY", -1, 1, 1, 3, 23.2))
sketch11.setExpression("Constraints[8]", "Params.sketch11_diameter")
pocket8 = body.newObject("PartDesign::Pocket", "Pocket007")
pocket8.Profile = sketch11
pocket8.setExpression("Length", "Params.pocket8_length")

# Sketch on XY plane
sketch12 = body.newObject("Sketcher::SketchObject", "Sketch011")
sketch12.AttachmentSupport = (doc.getObject("XY_Plane"), [""])
sketch12.MapMode = "FlatFace"
sketch12.AttachmentOffset = App.Placement(App.Vector(0, 0, 10.8), App.Rotation())
sketch12.addGeometry(Part.LineSegment(App.Vector(31.8, -8.2, 0), App.Vector(-7, -8.2, 0)), False)
sketch12.addGeometry(Part.LineSegment(App.Vector(-7, -8.2, 0), App.Vector(-4, -3, 0)), False)
sketch12.addGeometry(Part.ArcOfCircle(Part.Circle(App.Vector(0, 0, 0), App.Vector(0, 0, 1), 5), math.radians(-37), math.radians(217)), False)
sketch12.addGeometry(Part.LineSegment(App.Vector(4, -3, 0), App.Vector(6.2, -6.7, 0)), False)
sketch12.addGeometry(Part.LineSegment(App.Vector(6.2, -6.7, 0), App.Vector(18.6, -6.7, 0)), False)
sketch12.addGeometry(Part.LineSegment(App.Vector(18.6, -6.7, 0), App.Vector(20.8, -3, 0)), False)
sketch12.addGeometry(Part.ArcOfCircle(Part.Circle(App.Vector(24.8, 0, 0), App.Vector(0, 0, 1), 5), math.radians(-37), math.radians(217)), False)
sketch12.addGeometry(Part.LineSegment(App.Vector(28.8, -3, 0), App.Vector(31.8, -8.2, 0)), False)
sketch12.addGeometry(Part.Circle(App.Vector(24.8, 0, 0), App.Vector(0, 0, 1), 1.5), False)
sketch12.addGeometry(Part.Circle(App.Vector(0, 0, 0), App.Vector(0, 0, 1), 1.5), False)
sketch12.addConstraint(Sketcher.Constraint("Coincident", 0, 2, 1, 1))
sketch12.addConstraint(Sketcher.Constraint("Coincident", 1, 2, 2, 2))
sketch12.addConstraint(Sketcher.Constraint("Coincident", 2, 1, 3, 1))
sketch12.addConstraint(Sketcher.Constraint("Coincident", 3, 2, 4, 1))
sketch12.addConstraint(Sketcher.Constraint("Coincident", 4, 2, 5, 1))
sketch12.addConstraint(Sketcher.Constraint("Coincident", 5, 2, 6, 2))
sketch12.addConstraint(Sketcher.Constraint("Coincident", 6, 1, 7, 1))
sketch12.addConstraint(Sketcher.Constraint("Coincident", 7, 2, 0, 1))
sketch12.addConstraint(Sketcher.Constraint("Horizontal", 0))
sketch12.addConstraint(Sketcher.Constraint("Horizontal", 4))
sketch12.addConstraint(Sketcher.Constraint("Coincident", 2, 3, -1, 1))
sketch12.addConstraint(Sketcher.Constraint("Coincident", 9, 3, -1, 1))
sketch12.addConstraint(Sketcher.Constraint("Coincident", 8, 3, 6, 3))
sketch12.addConstraint(Sketcher.Constraint("Equal", 2, 6))
sketch12.addConstraint(Sketcher.Constraint("Equal", 8, 9))
sketch12.addConstraint(Sketcher.Constraint("PointOnObject", 6, 3, -1))
sketch12.addConstraint(Sketcher.Constraint("Parallel", 1, 5))
sketch12.addConstraint(Sketcher.Constraint("Parallel", 3, 7))
sketch12.addConstraint(Sketcher.Constraint("Horizontal", 1, 2, 2, 1))
sketch12.addConstraint(Sketcher.Constraint("Horizontal", 2, 1, 5, 2))
sketch12.addConstraint(Sketcher.Constraint("Horizontal", 5, 2, 6, 1))
sketch12.addConstraint(Sketcher.Constraint("Equal", 3, 5))
sketch12.addConstraint(Sketcher.Constraint("Diameter", 8, 3.0))
sketch12.addConstraint(Sketcher.Constraint("Radius", 2, 5.0))
sketch12.addConstraint(Sketcher.Constraint("Angle", 1, Q("59.999998 deg")))
sketch12.addConstraint(Sketcher.Constraint("Distance", 1, 6.0))
sketch12.addConstraint(Sketcher.Constraint("DistanceX", 0, 2, 0, 1, 38.8))
sketch12.addConstraint(Sketcher.Constraint("DistanceX", 4, 1, 4, 2, 12.5))
sketch12.addConstraint(Sketcher.Constraint("DistanceX", 0, 2, -1, 1, 7.0))
sketch12.setExpression("Constraints[22]", "Params.sketch12_diameter")
sketch12.setExpression("Constraints[23]", "Params.sketch12_radius")
sketch12.setExpression("Constraints[25]", "Params.sketch12_length")
sketch12.setExpression("Constraints[26]", "Params.sketch12_width")
sketch12.setExpression("Constraints[27]", "Params.sketch12_width2")
pad4 = body.newObject("PartDesign::Pad", "Pad003")
pad4.Profile = sketch12
pad4.setExpression("Length", "Params.pad4_length")
pad4.Reversed = True

doc.recompute()
